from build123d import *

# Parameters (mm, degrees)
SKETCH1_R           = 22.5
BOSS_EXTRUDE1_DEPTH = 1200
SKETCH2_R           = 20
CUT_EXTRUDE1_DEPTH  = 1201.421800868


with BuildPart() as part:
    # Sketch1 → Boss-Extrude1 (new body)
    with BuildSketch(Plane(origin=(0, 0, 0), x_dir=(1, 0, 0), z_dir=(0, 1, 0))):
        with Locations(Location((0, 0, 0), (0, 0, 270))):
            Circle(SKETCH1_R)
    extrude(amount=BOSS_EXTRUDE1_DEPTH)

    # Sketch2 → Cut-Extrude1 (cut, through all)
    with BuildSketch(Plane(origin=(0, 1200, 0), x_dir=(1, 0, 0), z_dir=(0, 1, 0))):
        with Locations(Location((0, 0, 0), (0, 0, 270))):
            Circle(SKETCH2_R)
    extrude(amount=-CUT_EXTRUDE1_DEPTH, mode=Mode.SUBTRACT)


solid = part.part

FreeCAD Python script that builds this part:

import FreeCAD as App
import Part
import Sketcher

V = App.Vector
Q = App.Units.Quantity

doc = App.newDocument("Part")
body = doc.addObject("PartDesign::Body", "Body")

# Sketch on XZ plane
sketch1 = doc.addObject("Sketcher::SketchObject", "Sketch")
body.addObject(sketch1)
sketch1.AttachmentSupport = (doc.XZ_Plane, [""])
sketch1.MapMode = "FlatFace"
sketch1.addGeometry(Part.Circle(V(0, 0, 0), V(0, 0, 1), 22.5), False)
sketch1.addConstraint([
    Sketcher.Constraint("Coincident", 0, 3, -1, 1),
    Sketcher.Constraint("Diameter", 0, Q("45 mm")),
])
pad1 = doc.addObject("PartDesign::Pad", "Pad")
body.addObject(pad1)
pad1.Profile = sketch1
pad1.Length = 1200
pad1.Reversed = True

# Sketch on XZ plane
sketch2 = doc.addObject("Sketcher::SketchObject", "Sketch001")
body.addObject(sketch2)
sketch2.AttachmentSupport = (doc.XZ_Plane, [""])
sketch2.MapMode = "FlatFace"
sketch2.AttachmentOffset = App.Placement(V(0, 0, -1200), App.Rotation())
sketch2.addGeometry(Part.Circle(V(0, 0, 0), V(0, 0, 1), 20), False)
sketch2.addConstraint([
    Sketcher.Constraint("Coincident", 0, 3, -1, 1),
    Sketcher.Constraint("Diameter", 0, Q("40 mm")),
])
pocket1 = doc.addObject("PartDesign::Pocket", "Pocket")
body.addObject(pocket1)
pocket1.Profile = sketch2
pocket1.Type = "ThroughAll"
pocket1.Reversed = True

doc.recompute()
